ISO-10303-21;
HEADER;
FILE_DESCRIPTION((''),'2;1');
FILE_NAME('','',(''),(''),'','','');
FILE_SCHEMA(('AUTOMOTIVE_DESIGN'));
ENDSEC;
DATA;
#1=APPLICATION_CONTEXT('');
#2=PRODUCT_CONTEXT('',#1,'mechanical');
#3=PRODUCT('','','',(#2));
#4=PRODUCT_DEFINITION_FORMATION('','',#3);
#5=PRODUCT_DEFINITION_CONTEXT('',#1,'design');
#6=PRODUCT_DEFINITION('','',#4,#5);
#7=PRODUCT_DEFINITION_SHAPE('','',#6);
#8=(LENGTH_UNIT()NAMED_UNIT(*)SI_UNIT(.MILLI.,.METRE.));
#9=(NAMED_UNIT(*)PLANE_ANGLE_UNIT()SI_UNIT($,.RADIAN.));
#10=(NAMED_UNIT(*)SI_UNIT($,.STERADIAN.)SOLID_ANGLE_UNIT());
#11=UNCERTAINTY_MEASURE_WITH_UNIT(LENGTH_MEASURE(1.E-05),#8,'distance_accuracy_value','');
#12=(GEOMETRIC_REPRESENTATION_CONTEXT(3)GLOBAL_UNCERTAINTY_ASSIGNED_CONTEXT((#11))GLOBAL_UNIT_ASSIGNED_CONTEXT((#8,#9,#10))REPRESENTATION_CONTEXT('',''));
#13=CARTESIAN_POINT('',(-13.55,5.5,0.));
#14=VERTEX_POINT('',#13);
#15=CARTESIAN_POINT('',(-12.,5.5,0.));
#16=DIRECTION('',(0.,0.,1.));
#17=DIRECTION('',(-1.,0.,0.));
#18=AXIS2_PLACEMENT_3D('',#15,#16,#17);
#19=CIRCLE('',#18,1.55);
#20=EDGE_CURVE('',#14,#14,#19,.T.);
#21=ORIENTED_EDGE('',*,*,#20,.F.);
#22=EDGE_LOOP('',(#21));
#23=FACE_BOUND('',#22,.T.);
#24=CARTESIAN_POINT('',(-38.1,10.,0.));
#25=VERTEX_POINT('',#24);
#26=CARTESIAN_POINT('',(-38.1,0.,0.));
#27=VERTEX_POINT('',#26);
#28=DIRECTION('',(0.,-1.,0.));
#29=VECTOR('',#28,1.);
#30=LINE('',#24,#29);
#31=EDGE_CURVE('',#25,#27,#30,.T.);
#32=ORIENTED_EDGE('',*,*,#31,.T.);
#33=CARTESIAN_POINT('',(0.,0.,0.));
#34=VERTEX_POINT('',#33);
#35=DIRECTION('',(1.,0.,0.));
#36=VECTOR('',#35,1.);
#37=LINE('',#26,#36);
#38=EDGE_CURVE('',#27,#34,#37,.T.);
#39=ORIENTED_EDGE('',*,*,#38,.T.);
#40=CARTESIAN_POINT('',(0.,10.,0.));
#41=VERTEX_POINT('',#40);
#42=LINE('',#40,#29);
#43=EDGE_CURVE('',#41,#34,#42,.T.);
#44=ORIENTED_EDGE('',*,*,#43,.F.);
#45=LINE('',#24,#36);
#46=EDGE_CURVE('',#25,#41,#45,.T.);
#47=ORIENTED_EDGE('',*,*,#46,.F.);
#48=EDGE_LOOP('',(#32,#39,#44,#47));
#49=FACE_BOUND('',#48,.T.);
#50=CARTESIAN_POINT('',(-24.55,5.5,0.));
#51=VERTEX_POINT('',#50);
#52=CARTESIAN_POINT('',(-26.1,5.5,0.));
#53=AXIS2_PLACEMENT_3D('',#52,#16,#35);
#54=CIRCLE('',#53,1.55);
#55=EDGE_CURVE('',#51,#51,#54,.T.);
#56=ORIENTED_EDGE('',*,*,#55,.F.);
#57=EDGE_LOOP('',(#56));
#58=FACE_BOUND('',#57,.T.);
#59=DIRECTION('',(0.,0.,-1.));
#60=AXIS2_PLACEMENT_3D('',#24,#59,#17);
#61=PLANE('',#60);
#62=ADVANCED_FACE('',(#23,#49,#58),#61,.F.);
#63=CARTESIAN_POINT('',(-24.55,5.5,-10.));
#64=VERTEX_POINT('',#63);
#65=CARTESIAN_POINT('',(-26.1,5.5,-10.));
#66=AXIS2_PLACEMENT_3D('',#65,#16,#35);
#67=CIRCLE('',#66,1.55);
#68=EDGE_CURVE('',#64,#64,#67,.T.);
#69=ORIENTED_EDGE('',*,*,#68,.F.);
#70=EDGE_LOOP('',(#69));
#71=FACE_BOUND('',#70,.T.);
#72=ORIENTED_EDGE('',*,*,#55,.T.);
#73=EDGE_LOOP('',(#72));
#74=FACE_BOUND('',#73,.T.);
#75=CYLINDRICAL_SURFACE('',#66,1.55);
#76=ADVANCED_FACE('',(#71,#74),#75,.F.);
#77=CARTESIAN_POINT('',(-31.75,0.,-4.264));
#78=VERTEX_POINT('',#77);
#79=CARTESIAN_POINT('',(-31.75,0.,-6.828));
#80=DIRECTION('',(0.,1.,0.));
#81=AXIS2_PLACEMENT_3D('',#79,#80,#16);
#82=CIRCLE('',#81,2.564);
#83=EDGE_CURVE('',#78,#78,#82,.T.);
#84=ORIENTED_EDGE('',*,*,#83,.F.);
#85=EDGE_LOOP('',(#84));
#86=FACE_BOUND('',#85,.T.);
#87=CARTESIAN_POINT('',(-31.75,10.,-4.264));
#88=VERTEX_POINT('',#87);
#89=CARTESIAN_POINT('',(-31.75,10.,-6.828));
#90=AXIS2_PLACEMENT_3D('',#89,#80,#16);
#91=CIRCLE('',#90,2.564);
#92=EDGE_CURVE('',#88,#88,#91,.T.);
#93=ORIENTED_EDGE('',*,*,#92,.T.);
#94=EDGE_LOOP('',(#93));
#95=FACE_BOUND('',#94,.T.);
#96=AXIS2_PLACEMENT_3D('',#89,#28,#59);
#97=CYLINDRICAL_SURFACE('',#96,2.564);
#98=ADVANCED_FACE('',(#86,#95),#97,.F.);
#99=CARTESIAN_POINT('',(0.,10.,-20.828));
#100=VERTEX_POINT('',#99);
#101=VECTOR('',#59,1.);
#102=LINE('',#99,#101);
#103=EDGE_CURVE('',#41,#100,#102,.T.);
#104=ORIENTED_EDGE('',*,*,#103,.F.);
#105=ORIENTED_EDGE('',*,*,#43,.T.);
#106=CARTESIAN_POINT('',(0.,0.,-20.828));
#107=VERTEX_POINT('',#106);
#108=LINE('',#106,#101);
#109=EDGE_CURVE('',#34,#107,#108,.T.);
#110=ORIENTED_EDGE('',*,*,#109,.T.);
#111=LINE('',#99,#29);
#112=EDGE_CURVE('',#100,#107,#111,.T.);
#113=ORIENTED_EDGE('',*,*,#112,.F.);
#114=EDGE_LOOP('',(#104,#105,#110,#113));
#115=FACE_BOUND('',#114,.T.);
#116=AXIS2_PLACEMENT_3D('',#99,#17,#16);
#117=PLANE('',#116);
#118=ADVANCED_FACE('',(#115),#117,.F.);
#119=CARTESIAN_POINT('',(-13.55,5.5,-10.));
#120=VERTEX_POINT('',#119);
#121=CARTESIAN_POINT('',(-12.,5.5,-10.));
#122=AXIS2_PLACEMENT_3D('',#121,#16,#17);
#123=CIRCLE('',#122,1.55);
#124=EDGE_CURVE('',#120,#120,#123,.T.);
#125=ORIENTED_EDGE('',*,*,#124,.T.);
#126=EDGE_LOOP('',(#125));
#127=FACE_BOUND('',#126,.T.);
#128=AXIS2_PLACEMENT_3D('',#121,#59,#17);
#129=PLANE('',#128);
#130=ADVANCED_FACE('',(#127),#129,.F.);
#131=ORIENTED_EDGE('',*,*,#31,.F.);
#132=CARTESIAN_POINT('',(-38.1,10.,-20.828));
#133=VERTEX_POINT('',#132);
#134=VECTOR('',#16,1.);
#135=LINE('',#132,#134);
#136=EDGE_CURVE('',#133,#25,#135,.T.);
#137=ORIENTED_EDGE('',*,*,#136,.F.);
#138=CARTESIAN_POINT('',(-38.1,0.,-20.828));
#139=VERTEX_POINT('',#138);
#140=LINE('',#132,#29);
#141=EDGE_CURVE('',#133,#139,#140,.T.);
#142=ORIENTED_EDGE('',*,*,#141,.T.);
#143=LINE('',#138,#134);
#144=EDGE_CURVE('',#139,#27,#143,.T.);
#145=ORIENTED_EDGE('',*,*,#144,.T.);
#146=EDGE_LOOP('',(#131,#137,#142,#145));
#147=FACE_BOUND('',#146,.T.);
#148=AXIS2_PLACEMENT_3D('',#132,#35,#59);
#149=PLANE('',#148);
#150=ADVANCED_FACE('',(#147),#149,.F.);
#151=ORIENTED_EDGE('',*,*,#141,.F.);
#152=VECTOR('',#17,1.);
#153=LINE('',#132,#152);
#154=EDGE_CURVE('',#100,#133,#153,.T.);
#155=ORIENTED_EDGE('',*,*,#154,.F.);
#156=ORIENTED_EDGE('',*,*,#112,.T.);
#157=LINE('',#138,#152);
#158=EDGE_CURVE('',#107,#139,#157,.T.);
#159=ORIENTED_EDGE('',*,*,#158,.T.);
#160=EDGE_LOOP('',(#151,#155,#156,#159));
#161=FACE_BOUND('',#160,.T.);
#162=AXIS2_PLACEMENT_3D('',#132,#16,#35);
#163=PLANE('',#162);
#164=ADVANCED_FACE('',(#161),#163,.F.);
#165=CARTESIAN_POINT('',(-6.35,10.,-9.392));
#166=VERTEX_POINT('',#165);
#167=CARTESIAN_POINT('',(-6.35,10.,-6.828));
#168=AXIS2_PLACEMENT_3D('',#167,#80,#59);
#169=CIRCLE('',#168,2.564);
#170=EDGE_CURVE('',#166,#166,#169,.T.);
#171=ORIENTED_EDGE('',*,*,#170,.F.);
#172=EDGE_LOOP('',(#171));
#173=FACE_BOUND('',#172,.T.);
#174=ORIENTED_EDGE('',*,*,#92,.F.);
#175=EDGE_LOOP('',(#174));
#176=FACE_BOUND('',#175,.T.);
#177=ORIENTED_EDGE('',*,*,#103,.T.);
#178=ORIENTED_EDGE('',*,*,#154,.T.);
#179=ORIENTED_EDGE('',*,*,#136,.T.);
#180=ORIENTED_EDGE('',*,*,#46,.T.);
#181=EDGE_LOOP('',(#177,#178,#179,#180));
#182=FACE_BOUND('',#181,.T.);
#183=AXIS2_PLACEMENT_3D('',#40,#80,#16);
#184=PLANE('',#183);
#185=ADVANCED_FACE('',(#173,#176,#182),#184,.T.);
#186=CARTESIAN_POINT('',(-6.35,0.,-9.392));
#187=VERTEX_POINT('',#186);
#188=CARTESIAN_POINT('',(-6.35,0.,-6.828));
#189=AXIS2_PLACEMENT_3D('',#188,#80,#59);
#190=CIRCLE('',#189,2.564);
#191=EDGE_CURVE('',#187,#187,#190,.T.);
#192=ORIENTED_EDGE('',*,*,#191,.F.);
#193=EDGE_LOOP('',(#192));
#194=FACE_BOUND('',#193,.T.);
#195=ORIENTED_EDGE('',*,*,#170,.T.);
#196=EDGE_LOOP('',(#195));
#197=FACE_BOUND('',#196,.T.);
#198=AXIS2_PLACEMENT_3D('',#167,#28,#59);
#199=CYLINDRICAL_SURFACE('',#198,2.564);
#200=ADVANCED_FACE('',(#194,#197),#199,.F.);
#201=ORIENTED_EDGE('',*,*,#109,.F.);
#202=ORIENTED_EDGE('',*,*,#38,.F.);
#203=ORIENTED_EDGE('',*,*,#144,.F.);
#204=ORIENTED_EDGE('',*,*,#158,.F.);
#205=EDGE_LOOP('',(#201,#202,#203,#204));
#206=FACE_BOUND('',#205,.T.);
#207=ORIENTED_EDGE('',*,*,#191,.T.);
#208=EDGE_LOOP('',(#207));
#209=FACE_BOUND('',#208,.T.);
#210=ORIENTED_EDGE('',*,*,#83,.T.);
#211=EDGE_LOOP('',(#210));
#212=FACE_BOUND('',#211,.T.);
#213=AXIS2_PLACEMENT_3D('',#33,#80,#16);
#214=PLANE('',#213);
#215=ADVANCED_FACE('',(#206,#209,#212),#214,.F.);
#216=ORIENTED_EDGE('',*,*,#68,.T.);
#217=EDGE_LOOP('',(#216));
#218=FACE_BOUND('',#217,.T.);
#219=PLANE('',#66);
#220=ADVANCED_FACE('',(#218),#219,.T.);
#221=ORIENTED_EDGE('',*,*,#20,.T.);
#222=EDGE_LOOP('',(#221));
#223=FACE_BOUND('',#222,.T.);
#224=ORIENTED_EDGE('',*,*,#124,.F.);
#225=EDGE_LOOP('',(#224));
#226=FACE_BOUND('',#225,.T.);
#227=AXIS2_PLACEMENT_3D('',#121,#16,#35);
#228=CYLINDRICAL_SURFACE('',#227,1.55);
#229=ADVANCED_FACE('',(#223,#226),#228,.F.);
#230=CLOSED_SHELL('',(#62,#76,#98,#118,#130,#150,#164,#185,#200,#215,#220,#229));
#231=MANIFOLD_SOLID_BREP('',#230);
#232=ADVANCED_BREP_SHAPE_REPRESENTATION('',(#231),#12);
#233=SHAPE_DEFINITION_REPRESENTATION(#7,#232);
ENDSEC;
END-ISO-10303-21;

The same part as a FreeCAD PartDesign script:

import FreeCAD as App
import Part
import Sketcher
from FreeCAD import Vector

doc = App.newDocument("Part")
body = doc.addObject("PartDesign::Body", "Body")

sketch1 = doc.addObject("Sketcher::SketchObject", "Sketch")
body.addObject(sketch1)
sketch1.AttachmentSupport = (doc.XZ_Plane, [""])
sketch1.MapMode = "FlatFace"
sketch1.addGeometry([
    Part.LineSegment(Vector(-38.1, -20.8, 0), Vector(-38.1, 0, 0)),
    Part.LineSegment(Vector(-38.1, 0, 0), Vector(0, 0, 0)),
    Part.LineSegment(Vector(0, 0, 0), Vector(0, -20.8, 0)),
    Part.LineSegment(Vector(0, -20.8, 0), Vector(-38.1, -20.8, 0)),
    Part.Circle(Vector(-31.8, -6.8, 0), Vector(0, 0, 1), 2.6),
    Part.Circle(Vector(-6.3, -6.8, 0), Vector(0, 0, 1), 2.6),
], False)
sketch1.addConstraint([
    Sketcher.Constraint("Coincident", 0, 2, 1, 1),
    Sketcher.Constraint("Coincident", 1, 2, 2, 1),
    Sketcher.Constraint("Coincident", 2, 2, 3, 1),
    Sketcher.Constraint("Coincident", 3, 2, 0, 1),
    Sketcher.Constraint("Vertical", 0),
    Sketcher.Constraint("Horizontal", 1),
    Sketcher.Constraint("Vertical", 2),
    Sketcher.Constraint("Horizontal", 3),
    Sketcher.Constraint("Coincident", 1, 2, -1, 1),
    Sketcher.Constraint("Equal", 4, 5),
    Sketcher.Constraint("Horizontal", 4, 3, 5, 3),
    Sketcher.Constraint("Diameter", 4, 5.128),
    Sketcher.Constraint("DistanceX", 1, 1, 1, 2, 38.1),
    Sketcher.Constraint("DistanceY", 2, 2, 5, 3, 14.0),
    Sketcher.Constraint("DistanceX", 4, 3, 5, 3, 25.4),
    Sketcher.Constraint("DistanceY", 0, 1, 0, 2, 20.828),
    Sketcher.Constraint("DistanceX", 4, 3, -1, 1, 31.75),
])
pad1 = doc.addObject("PartDesign::Pad", "Pad")
body.addObject(pad1)
pad1.Profile = sketch1
pad1.Length = 10
pad1.Reversed = True

sketch2 = doc.addObject("Sketcher::SketchObject", "Sketch001")
body.addObject(sketch2)
sketch2.AttachmentSupport = (doc.XY_Plane, [""])
sketch2.MapMode = "FlatFace"
sketch2.addGeometry([
    Part.Circle(Vector(-26.1, 5.5, 0), Vector(0, 0, 1), 1.6),
    Part.Circle(Vector(-12, 5.5, 0), Vector(0, 0, 1), 1.6),
], False)
sketch2.addConstraint([
    Sketcher.Constraint("Equal", 0, 1),
    Sketcher.Constraint("Horizontal", 0, 3, 1, 3),
    Sketcher.Constraint("Diameter", 0, 3.1),
    Sketcher.Constraint("DistanceX", 1, 3, -1, 1, 12.0),
    Sketcher.Constraint("DistanceX", 0, 3, -1, 1, 26.1),
    Sketcher.Constraint("DistanceY", -1, 1, 0, 3, 5.5),
])
pocket1 = doc.addObject("PartDesign::Pocket", "Pocket")
body.addObject(pocket1)
pocket1.Profile = sketch2
pocket1.Length = 10

doc.recompute()
